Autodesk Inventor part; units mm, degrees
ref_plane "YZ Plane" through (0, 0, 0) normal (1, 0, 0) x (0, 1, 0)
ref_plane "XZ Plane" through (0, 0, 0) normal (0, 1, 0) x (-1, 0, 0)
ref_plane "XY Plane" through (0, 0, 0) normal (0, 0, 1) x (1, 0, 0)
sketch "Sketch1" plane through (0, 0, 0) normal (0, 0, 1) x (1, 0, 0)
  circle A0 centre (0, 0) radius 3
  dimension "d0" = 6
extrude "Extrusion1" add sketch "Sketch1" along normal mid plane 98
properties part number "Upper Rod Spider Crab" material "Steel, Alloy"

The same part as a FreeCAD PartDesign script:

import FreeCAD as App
import Part
import Sketcher

V = App.Vector

doc = App.newDocument("Part")
params = doc.addObject("Spreadsheet::Sheet", "Params")
for row, (alias, value) in enumerate([
    ("sketch1_diameter", "6 mm"),
    ("pad1_length", "98 mm"),
], start=1):
    params.set(f"A{row}", alias)
    params.set(f"B{row}", "=" + value)
    params.setAlias(f"B{row}", alias)

body = doc.addObject("PartDesign::Body", "Body")

# Sketch on XY plane
sketch1 = body.newObject("Sketcher::SketchObject", "Sketch")
sketch1.AttachmentSupport = (doc.getObject("XY_Plane"), [""])
sketch1.MapMode = "FlatFace"
sketch1.addGeometry(Part.Circle(V(0, 0, 0), V(0, 0, 1), 3), False)
sketch1.addConstraint([
    Sketcher.Constraint("Coincident", 0, 3, -1, 1),
    Sketcher.Constraint("Diameter", 0, 6.0),
])
sketch1.setExpression("Constraints[1]", "Params.sketch1_diameter")
pad1 = body.newObject("PartDesign::Pad", "Pad")
pad1.Profile = sketch1
pad1.setExpression("Length", "Params.pad1_length")
pad1.Midplane = True

doc.recompute()
